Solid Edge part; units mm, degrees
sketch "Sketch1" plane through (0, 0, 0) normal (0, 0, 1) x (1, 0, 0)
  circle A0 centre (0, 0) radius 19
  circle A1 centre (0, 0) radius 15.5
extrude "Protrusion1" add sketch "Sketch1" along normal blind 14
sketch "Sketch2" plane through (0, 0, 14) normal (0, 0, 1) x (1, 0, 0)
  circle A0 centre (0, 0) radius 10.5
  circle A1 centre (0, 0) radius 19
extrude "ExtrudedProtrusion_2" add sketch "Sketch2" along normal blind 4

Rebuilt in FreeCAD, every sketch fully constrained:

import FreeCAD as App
import Part
import Sketcher

V = App.Vector

doc = App.newDocument("Part")
body = doc.addObject("PartDesign::Body", "Body")

sketch1 = doc.addObject("Sketcher::SketchObject", "Sketch")
body.addObject(sketch1)
sketch1.AttachmentSupport = (doc.XY_Plane, [""])
sketch1.MapMode = "FlatFace"
sketch1.addGeometry(Part.Circle(V(0, 0, 0), V(0, 0, 1), 19), False)
sketch1.addGeometry(Part.Circle(V(0, 0, 0), V(0, 0, 1), 15.5), False)
sketch1.addConstraint(Sketcher.Constraint("Coincident", 0, 3, -1, 1))
sketch1.addConstraint(Sketcher.Constraint("Coincident", 1, 3, -1, 1))
sketch1.addConstraint(Sketcher.Constraint("Diameter", 0, 38.0))
sketch1.addConstraint(Sketcher.Constraint("Diameter", 1, 31.0))
pad1 = doc.addObject("PartDesign::Pad", "Pad")
body.addObject(pad1)
pad1.Profile = sketch1
pad1.Length = 14

sketch2 = doc.addObject("Sketcher::SketchObject", "Sketch001")
body.addObject(sketch2)
sketch2.AttachmentSupport = (doc.XY_Plane, [""])
sketch2.MapMode = "FlatFace"
sketch2.AttachmentOffset = App.Placement(V(0, 0, 14), App.Rotation())
sketch2.addGeometry(Part.Circle(V(0, 0, 0), V(0, 0, 1), 19), False)
sketch2.addGeometry(Part.Circle(V(0, 0, 0), V(0, 0, 1), 10.5), False)
sketch2.addConstraint(Sketcher.Constraint("Coincident", 0, 3, -1, 1))
sketch2.addConstraint(Sketcher.Constraint("Coincident", 1, 3, -1, 1))
sketch2.addConstraint(Sketcher.Constraint("Diameter", 0, 38.0))
sketch2.addConstraint(Sketcher.Constraint("Diameter", 1, 21.0))
pad2 = doc.addObject("PartDesign::Pad", "Pad001")
body.addObject(pad2)
pad2.Profile = sketch2
pad2.Length = 4

doc.recompute()
